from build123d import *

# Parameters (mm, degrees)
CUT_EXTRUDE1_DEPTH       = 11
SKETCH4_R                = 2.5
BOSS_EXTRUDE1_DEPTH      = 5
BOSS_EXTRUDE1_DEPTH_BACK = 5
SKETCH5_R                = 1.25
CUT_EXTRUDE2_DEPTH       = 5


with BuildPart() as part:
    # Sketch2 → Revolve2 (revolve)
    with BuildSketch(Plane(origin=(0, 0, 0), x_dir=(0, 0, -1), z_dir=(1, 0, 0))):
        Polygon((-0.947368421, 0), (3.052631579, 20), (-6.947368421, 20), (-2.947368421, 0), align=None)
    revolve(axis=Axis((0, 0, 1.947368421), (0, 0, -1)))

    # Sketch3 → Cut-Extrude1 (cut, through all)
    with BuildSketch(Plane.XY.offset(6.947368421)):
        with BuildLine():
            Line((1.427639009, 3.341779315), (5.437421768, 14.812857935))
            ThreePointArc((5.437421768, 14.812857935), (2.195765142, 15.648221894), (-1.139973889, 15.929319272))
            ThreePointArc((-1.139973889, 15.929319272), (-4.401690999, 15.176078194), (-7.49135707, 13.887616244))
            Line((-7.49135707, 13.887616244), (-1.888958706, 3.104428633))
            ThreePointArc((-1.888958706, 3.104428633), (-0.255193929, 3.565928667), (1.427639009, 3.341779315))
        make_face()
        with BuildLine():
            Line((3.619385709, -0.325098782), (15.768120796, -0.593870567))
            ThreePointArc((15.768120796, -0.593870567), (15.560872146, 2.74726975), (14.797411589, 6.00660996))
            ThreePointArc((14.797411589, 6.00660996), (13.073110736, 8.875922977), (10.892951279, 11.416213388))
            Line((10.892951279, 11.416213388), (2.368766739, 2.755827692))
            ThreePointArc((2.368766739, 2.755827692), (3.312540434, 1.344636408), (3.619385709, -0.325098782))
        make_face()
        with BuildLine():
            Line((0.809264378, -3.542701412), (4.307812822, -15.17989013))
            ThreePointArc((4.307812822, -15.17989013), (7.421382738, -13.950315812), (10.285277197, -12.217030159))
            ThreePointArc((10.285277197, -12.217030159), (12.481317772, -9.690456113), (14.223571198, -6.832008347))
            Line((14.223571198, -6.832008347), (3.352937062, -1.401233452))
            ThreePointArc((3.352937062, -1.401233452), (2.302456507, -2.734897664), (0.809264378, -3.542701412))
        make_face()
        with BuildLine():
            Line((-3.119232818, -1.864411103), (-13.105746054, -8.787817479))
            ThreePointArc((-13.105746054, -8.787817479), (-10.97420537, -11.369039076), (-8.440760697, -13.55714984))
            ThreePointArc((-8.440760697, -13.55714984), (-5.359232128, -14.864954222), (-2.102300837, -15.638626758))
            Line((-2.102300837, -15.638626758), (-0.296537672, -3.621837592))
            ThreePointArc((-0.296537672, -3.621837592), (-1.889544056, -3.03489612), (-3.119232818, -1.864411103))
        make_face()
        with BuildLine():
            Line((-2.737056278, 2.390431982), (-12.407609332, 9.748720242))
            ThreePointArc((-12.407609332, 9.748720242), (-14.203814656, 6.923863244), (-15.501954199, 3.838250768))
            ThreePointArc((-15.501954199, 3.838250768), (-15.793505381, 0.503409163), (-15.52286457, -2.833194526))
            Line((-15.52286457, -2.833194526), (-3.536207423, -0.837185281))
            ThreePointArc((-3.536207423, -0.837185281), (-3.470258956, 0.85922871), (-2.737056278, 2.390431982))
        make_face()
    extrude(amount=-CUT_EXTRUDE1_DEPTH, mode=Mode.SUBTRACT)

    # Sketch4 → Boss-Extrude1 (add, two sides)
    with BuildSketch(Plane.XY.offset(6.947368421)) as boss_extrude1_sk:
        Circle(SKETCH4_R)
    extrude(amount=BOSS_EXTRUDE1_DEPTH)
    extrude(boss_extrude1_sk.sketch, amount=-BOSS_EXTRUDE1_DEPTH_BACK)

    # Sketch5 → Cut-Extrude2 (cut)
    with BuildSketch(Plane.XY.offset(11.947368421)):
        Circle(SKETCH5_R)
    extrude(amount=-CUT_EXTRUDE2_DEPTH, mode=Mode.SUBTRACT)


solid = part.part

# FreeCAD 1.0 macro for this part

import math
import FreeCAD as App
import Part
import Sketcher


def add_polygon(sketch, points):
    """Adds a closed chain of lines whose ends are joined by coincident constraints."""
    first, n = sketch.GeometryCount, len(points)
    for a, b in zip(points, points[1:] + points[:1]):
        sketch.addGeometry(Part.LineSegment(App.Vector(*a, 0), App.Vector(*b, 0)), False)
    for i in range(n):
        sketch.addConstraint(Sketcher.Constraint("Coincident", first + i, 2, first + (i + 1) % n, 1))

doc = App.newDocument("Part")
body = doc.addObject("PartDesign::Body", "Body")

# Sketch on YZ plane
sketch1 = body.newObject("Sketcher::SketchObject", "Sketch")
sketch1.AttachmentSupport = (doc.getObject("YZ_Plane"), [""])
sketch1.MapMode = "FlatFace"
add_polygon(sketch1, [(0, 0.9), (20, -3.1), (20, 6.9), (0, 2.9)])  # lines 0-3
sketch1.addConstraint(Sketcher.Constraint("Vertical", 1))
sketch1.addConstraint(Sketcher.Constraint("Vertical", 3))
sketch1.addConstraint(Sketcher.Constraint("PointOnObject", 2, 2, -2))
sketch1.addConstraint(Sketcher.Constraint("Equal", 0, 2))
sketch1.addConstraint(Sketcher.Constraint("DistanceY", 1, 1, 1, 2, 10.0))
sketch1.addConstraint(Sketcher.Constraint("DistanceY", 3, 2, 3, 1, 2.0))
sketch1.addConstraint(Sketcher.Constraint("DistanceX", -1, 1, 0, 2, 20.0))
sketch1.addConstraint(Sketcher.Constraint("DistanceY", 0, 2, -1, 1, 3.052632))
revolution = body.newObject("PartDesign::Revolution", "Revolution")
revolution.Profile = sketch1
revolution.ReferenceAxis = (sketch1, ["V_Axis"])
revolution.Angle = 360

# Sketch on XY plane
sketch2 = body.newObject("Sketcher::SketchObject", "Sketch001")
sketch2.AttachmentSupport = (doc.getObject("XY_Plane"), [""])
sketch2.MapMode = "FlatFace"
sketch2.AttachmentOffset = App.Placement(App.Vector(0, 0, 6.947368), App.Rotation())
sketch2.addGeometry(Part.LineSegment(App.Vector(1.4, 3.3, 0), App.Vector(5.4, 14.8, 0)), False)
sketch2.addGeometry(Part.ArcOfCircle(Part.Circle(App.Vector(-1.1, -4, 0), App.Vector(0, 0, 1), 19.9), math.radians(70.73), math.radians(90)), False)
sketch2.addGeometry(Part.ArcOfCircle(Part.Circle(App.Vector(1.7, -3.8, 0), App.Vector(0, 0, 1), 19.9), math.radians(98.19), math.radians(117.45)), False)
sketch2.addGeometry(Part.LineSegment(App.Vector(-7.5, 13.9, 0), App.Vector(-1.9, 3.1, 0)), False)
sketch2.addGeometry(Part.ArcOfCircle(Part.Circle(App.Vector(0, -0.6, 0), App.Vector(0, 0, 1), 4.2), math.radians(71), math.radians(117)), False)
sketch2.addGeometry(Part.LineSegment(App.Vector(3.6, -0.3, 0), App.Vector(15.8, -0.6, 0)), False)
sketch2.addGeometry(Part.ArcOfCircle(Part.Circle(App.Vector(-4.2, -0.2, 0), App.Vector(0, 0, 1), 19.9), math.radians(-1.27), math.radians(18)), False)
sketch2.addGeometry(Part.ArcOfCircle(Part.Circle(App.Vector(-3.1, -2.8, 0), App.Vector(0, 0, 1), 19.9), math.radians(26.19), math.radians(45.45)), False)
sketch2.addGeometry(Part.LineSegment(App.Vector(10.9, 11.4, 0), App.Vector(2.4, 2.8, 0)), False)
sketch2.addGeometry(Part.ArcOfCircle(Part.Circle(App.Vector(-0.6, -0.2, 0), App.Vector(0, 0, 1), 4.2), math.radians(-1), math.radians(45)), False)
sketch2.addGeometry(Part.LineSegment(App.Vector(0.8, -3.5, 0), App.Vector(4.3, -15.2, 0)), False)
sketch2.addGeometry(Part.ArcOfCircle(Part.Circle(App.Vector(-1.4, 3.9, 0), App.Vector(0, 0, 1), 19.9), math.radians(-73.27), math.radians(-54)), False)
sketch2.addGeometry(Part.ArcOfCircle(Part.Circle(App.Vector(-3.6, 2.1, 0), App.Vector(0, 0, 1), 19.9), math.radians(-45.81), math.radians(-26.55)), False)
sketch2.addGeometry(Part.LineSegment(App.Vector(14.2, -6.8, 0), App.Vector(3.4, -1.4, 0)), False)
sketch2.addGeometry(Part.ArcOfCircle(Part.Circle(App.Vector(-0.4, 0.5, 0), App.Vector(0, 0, 1), 4.2), math.radians(-73), math.radians(-27)), False)
sketch2.addGeometry(Part.LineSegment(App.Vector(-3.1, -1.9, 0), App.Vector(-13.1, -8.8, 0)), False)
sketch2.addGeometry(Part.ArcOfCircle(Part.Circle(App.Vector(3.3, 2.6, 0), App.Vector(0, 0, 1), 19.9), math.radians(-145.27), math.radians(-126)), False)
sketch2.addGeometry(Part.ArcOfCircle(Part.Circle(App.Vector(0.9, 4.1, 0), App.Vector(0, 0, 1), 19.9), math.radians(-117.81), math.radians(-98.55)), False)
sketch2.addGeometry(Part.LineSegment(App.Vector(-2.1, -15.6, 0), App.Vector(-0.3, -3.6, 0)), False)
sketch2.addGeometry(Part.ArcOfCircle(Part.Circle(App.Vector(0.3, 0.5, 0), App.Vector(0, 0, 1), 4.2), math.radians(-145), math.radians(-99)), False)
sketch2.addGeometry(Part.LineSegment(App.Vector(-2.7, 2.4, 0), App.Vector(-12.4, 9.7, 0)), False)
sketch2.addGeometry(Part.ArcOfCircle(Part.Circle(App.Vector(3.5, -2.3, 0), App.Vector(0, 0, 1), 19.9), math.radians(142.73), math.radians(162)), False)
sketch2.addGeometry(Part.ArcOfCircle(Part.Circle(App.Vector(4.1, 0.4, 0), App.Vector(0, 0, 1), 19.9), math.radians(170.19), math.radians(189.45)), False)
sketch2.addGeometry(Part.LineSegment(App.Vector(-15.5, -2.8, 0), App.Vector(-3.5, -0.8, 0)), False)
sketch2.addGeometry(Part.ArcOfCircle(Part.Circle(App.Vector(0.6, -0.1, 0), App.Vector(0, 0, 1), 4.2), math.radians(143), math.radians(189)), False)
sketch2.addConstraint(Sketcher.Constraint("Coincident", 0, 2, 1, 1))
sketch2.addConstraint(Sketcher.Constraint("Coincident", 1, 2, 2, 1))
sketch2.addConstraint(Sketcher.Constraint("Coincident", 2, 2, 3, 1))
sketch2.addConstraint(Sketcher.Constraint("Coincident", 3, 2, 4, 2))
sketch2.addConstraint(Sketcher.Constraint("Coincident", 4, 1, 0, 1))
sketch2.addConstraint(Sketcher.Constraint("Coincident", 5, 2, 6, 1))
sketch2.addConstraint(Sketcher.Constraint("Coincident", 6, 2, 7, 1))
sketch2.addConstraint(Sketcher.Constraint("Coincident", 7, 2, 8, 1))
sketch2.addConstraint(Sketcher.Constraint("Coincident", 8, 2, 9, 2))
sketch2.addConstraint(Sketcher.Constraint("Coincident", 9, 1, 5, 1))
sketch2.addConstraint(Sketcher.Constraint("Coincident", 10, 2, 11, 1))
sketch2.addConstraint(Sketcher.Constraint("Coincident", 11, 2, 12, 1))
sketch2.addConstraint(Sketcher.Constraint("Coincident", 12, 2, 13, 1))
sketch2.addConstraint(Sketcher.Constraint("Coincident", 13, 2, 14, 2))
sketch2.addConstraint(Sketcher.Constraint("Coincident", 14, 1, 10, 1))
sketch2.addConstraint(Sketcher.Constraint("Coincident", 15, 2, 16, 1))
sketch2.addConstraint(Sketcher.Constraint("Coincident", 16, 2, 17, 1))
sketch2.addConstraint(Sketcher.Constraint("Coincident", 17, 2, 18, 1))
sketch2.addConstraint(Sketcher.Constraint("Coincident", 18, 2, 19, 2))
sketch2.addConstraint(Sketcher.Constraint("Coincident", 19, 1, 15, 1))
sketch2.addConstraint(Sketcher.Constraint("Coincident", 20, 2, 21, 1))
sketch2.addConstraint(Sketcher.Constraint("Coincident", 21, 2, 22, 1))
sketch2.addConstraint(Sketcher.Constraint("Coincident", 22, 2, 23, 1))
sketch2.addConstraint(Sketcher.Constraint("Coincident", 23, 2, 24, 2))
sketch2.addConstraint(Sketcher.Constraint("Coincident", 24, 1, 20, 1))
sketch2.addConstraint(Sketcher.Constraint("Equal", 1, 2))
sketch2.addConstraint(Sketcher.Constraint("Equal", 2, 6))
sketch2.addConstraint(Sketcher.Constraint("Equal", 6, 7))
sketch2.addConstraint(Sketcher.Constraint("Equal", 4, 9))
sketch2.addConstraint(Sketcher.Constraint("Equal", 7, 11))
sketch2.addConstraint(Sketcher.Constraint("Equal", 11, 12))
sketch2.addConstraint(Sketcher.Constraint("Equal", 9, 14))
sketch2.addConstraint(Sketcher.Constraint("Equal", 12, 16))
sketch2.addConstraint(Sketcher.Constraint("Equal", 16, 17))
sketch2.addConstraint(Sketcher.Constraint("Equal", 14, 19))
sketch2.addConstraint(Sketcher.Constraint("Equal", 17, 21))
sketch2.addConstraint(Sketcher.Constraint("Equal", 21, 22))
sketch2.addConstraint(Sketcher.Constraint("Equal", 19, 24))
sketch2.addConstraint(Sketcher.Constraint("Equal", 0, 3))
sketch2.addConstraint(Sketcher.Constraint("Equal", 3, 5))
sketch2.addConstraint(Sketcher.Constraint("Equal", 5, 8))
sketch2.addConstraint(Sketcher.Constraint("Equal", 8, 10))
sketch2.addConstraint(Sketcher.Constraint("Equal", 10, 13))
sketch2.addConstraint(Sketcher.Constraint("Equal", 13, 15))
sketch2.addConstraint(Sketcher.Constraint("Equal", 15, 18))
sketch2.addConstraint(Sketcher.Constraint("Equal", 18, 20))
sketch2.addConstraint(Sketcher.Constraint("Equal", 20, 23))
sketch2.addConstraint(Sketcher.Constraint("Radius", 4, 4.192839))
sketch2.addConstraint(Sketcher.Constraint("Radius", 1, 19.932898))
sketch2.addConstraint(Sketcher.Constraint("DistanceX", 6, 3, 4, 3, 4.204))
sketch2.addConstraint(Sketcher.Constraint("DistanceX", -1, 1, 4, 3, 0.044099))
sketch2.addConstraint(Sketcher.Constraint("DistanceY", 9, 1, -1, 1, 0.325099))
sketch2.addConstraint(Sketcher.Constraint("DistanceY", 14, 1, -1, 1, 3.542701))
sketch2.addConstraint(Sketcher.Constraint("DistanceX", 17, 2, -1, 1, 2.102301))
sketch2.addConstraint(Sketcher.Constraint("DistanceX", 7, 3, 11, 3, 1.658599))
sketch2.addConstraint(Sketcher.Constraint("DistanceY", 1, 3, 11, 3, 7.912602))
sketch2.addConstraint(Sketcher.Constraint("DistanceY", 6, 3, 14, 3, 0.625601))
sketch2.addConstraint(Sketcher.Constraint("DistanceY", 17, 3, 0, 2, 10.739899))
sketch2.addConstraint(Sketcher.Constraint("DistanceX", 7, 3, 10, 2, 7.397398))
sketch2.addConstraint(Sketcher.Constraint("DistanceX", 14, 1, 2, 3, 0.889201))
sketch2.addConstraint(Sketcher.Constraint("DistanceY", 18, 2, 7, 3, 0.832099))
sketch2.addConstraint(Sketcher.Constraint("DistanceY", 20, 2, 1, 2, 6.180599))
sketch2.addConstraint(Sketcher.Constraint("DistanceY", 22, 2, 6, 3, 2.6802))
sketch2.addConstraint(Sketcher.Constraint("DistanceY", 1, 3, -1, 1, 4.003579))
sketch2.addConstraint(Sketcher.Constraint("DistanceY", 7, 3, -1, 1, 2.789739))
sketch2.addConstraint(Sketcher.Constraint("DistanceY", 9, 3, -1, 1, 0.232361))
sketch2.addConstraint(Sketcher.Constraint("DistanceX", 14, 3, -1, 1, 0.397879))
sketch2.addConstraint(Sketcher.Constraint("DistanceX", -1, 1, 17, 3, 0.85976))
sketch2.addConstraint(Sketcher.Constraint("DistanceY", -1, 1, 17, 3, 4.072959))
sketch2.addConstraint(Sketcher.Constraint("DistanceY", -1, 1, 19, 3, 0.524449))
sketch2.addConstraint(Sketcher.Constraint("DistanceX", -1, 1, 21, 3, 3.455358))
sketch2.addConstraint(Sketcher.Constraint("DistanceY", 24, 3, -1, 1, 0.14848))
sketch2.addConstraint(Sketcher.Constraint("DistanceX", -1, 1, 0, 2, 5.437422))
sketch2.addConstraint(Sketcher.Constraint("DistanceX", 3, 2, -1, 1, 1.888959))
sketch2.addConstraint(Sketcher.Constraint("DistanceY", -1, 1, 3, 2, 3.104429))
sketch2.addConstraint(Sketcher.Constraint("DistanceX", -1, 1, 4, 1, 1.427639))
sketch2.addConstraint(Sketcher.Constraint("DistanceX", -1, 1, 5, 2, 15.768121))
sketch2.addConstraint(Sketcher.Constraint("DistanceX", -1, 1, 7, 2, 10.892951))
sketch2.addConstraint(Sketcher.Constraint("DistanceY", 11, 2, -1, 1, 12.21703))
sketch2.addConstraint(Sketcher.Constraint("DistanceX", -1, 1, 12, 2, 14.223571))
sketch2.addConstraint(Sketcher.Constraint("DistanceX", 16, 2, -1, 1, 8.440761))
sketch2.addConstraint(Sketcher.Constraint("DistanceY", 19, 1, -1, 1, 1.864411))
sketch2.addConstraint(Sketcher.Constraint("DistanceX", 20, 2, -1, 1, 12.407609))
sketch2.addConstraint(Sketcher.Constraint("DistanceY", -1, 1, 21, 2, 3.838251))
sketch2.addConstraint(Sketcher.Constraint("DistanceY", -1, 1, 24, 1, 2.390432))
sketch2.addConstraint(Sketcher.Constraint("DistanceX", 2, 2, 11, 3, 6.060371))
sketch2.addConstraint(Sketcher.Constraint("DistanceY", 8, 2, 4, 1, 0.585952))
sketch2.addConstraint(Sketcher.Constraint("DistanceX", 13, 2, 21, 3, 0.102421))
sketch2.addConstraint(Sketcher.Constraint("DistanceX", 15, 2, 7, 3, 10.016161))
sketch2.addConstraint(Sketcher.Constraint("DistanceY", 23, 2, 6, 3, 0.684191))
pocket1 = body.newObject("PartDesign::Pocket", "Pocket")
pocket1.Profile = sketch2
pocket1.Type = "ThroughAll"

# Sketch on XY plane
sketch3 = body.newObject("Sketcher::SketchObject", "Sketch002")
sketch3.AttachmentSupport = (doc.getObject("XY_Plane"), [""])
sketch3.MapMode = "FlatFace"
sketch3.AttachmentOffset = App.Placement(App.Vector(0, 0, 6.947368), App.Rotation())
sketch3.addGeometry(Part.Circle(App.Vector(0, 0, 0), App.Vector(0, 0, 1), 2.5), False)
sketch3.addConstraint(Sketcher.Constraint("Coincident", 0, 3, -1, 1))
sketch3.addConstraint(Sketcher.Constraint("Diameter", 0, 5.0))
pad1 = body.newObject("PartDesign::Pad", "Pad")
pad1.Profile = sketch3
pad1.Type = "TwoLengths"
pad1.Length = 5
pad1.Length2 = 5

# Sketch on XY plane
sketch4 = body.newObject("Sketcher::SketchObject", "Sketch003")
sketch4.AttachmentSupport = (doc.getObject("XY_Plane"), [""])
sketch4.MapMode = "FlatFace"
sketch4.AttachmentOffset = App.Placement(App.Vector(0, 0, 11.947368), App.Rotation())
sketch4.addGeometry(Part.Circle(App.Vector(0, 0, 0), App.Vector(0, 0, 1), 1.2), False)
sketch4.addConstraint(Sketcher.Constraint("Coincident", 0, 3, -1, 1))
sketch4.addConstraint(Sketcher.Constraint("Diameter", 0, 2.5))
pocket2 = body.newObject("PartDesign::Pocket", "Pocket001")
pocket2.Profile = sketch4
pocket2.Length = 5

doc.recompute()
